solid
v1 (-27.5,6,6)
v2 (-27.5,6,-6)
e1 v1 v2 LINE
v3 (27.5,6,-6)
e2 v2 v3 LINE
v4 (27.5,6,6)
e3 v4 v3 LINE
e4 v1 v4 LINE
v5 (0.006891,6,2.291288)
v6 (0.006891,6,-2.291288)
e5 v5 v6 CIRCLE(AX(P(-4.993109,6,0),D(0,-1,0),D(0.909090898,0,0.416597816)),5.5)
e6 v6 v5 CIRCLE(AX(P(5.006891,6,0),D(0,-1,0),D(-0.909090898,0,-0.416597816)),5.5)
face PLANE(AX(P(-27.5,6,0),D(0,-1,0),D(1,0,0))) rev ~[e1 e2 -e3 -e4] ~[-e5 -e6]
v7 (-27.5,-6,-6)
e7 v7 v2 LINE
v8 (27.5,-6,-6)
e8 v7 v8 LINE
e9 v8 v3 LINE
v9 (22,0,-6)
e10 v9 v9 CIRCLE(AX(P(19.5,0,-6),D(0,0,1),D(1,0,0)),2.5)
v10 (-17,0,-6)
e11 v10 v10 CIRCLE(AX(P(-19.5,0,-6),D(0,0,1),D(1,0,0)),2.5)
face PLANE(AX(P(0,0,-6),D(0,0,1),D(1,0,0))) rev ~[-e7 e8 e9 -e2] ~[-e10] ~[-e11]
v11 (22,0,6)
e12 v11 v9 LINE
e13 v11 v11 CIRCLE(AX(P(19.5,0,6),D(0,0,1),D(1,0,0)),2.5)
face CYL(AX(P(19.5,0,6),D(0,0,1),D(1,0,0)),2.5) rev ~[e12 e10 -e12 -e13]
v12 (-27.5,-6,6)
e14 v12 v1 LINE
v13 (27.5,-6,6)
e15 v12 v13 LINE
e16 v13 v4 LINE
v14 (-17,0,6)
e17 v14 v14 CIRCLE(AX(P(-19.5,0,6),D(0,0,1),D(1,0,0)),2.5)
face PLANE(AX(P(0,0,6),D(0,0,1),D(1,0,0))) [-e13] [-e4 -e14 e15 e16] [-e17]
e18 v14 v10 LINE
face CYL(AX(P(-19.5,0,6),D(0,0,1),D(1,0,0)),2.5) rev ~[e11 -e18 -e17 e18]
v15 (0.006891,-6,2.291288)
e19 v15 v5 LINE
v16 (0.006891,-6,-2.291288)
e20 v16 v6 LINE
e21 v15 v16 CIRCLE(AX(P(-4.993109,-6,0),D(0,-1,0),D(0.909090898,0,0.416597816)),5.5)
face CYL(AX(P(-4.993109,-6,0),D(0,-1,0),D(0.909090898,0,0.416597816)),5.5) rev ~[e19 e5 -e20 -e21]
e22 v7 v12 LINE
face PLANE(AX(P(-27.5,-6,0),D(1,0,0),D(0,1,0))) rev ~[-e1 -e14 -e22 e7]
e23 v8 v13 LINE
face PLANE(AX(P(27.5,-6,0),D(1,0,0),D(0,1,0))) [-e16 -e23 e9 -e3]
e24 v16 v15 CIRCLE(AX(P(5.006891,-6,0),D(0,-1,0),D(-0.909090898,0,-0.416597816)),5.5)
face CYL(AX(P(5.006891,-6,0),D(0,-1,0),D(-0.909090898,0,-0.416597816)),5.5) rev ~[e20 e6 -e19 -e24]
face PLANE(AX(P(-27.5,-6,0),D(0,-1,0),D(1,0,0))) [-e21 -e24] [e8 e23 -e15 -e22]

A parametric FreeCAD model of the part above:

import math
import FreeCAD as App
import Part
import Sketcher
Q = App.Units.Quantity


def add_polygon(sketch, points):
    """Adds a closed chain of lines whose ends are joined by coincident constraints."""
    first, n = sketch.GeometryCount, len(points)
    for a, b in zip(points, points[1:] + points[:1]):
        sketch.addGeometry(Part.LineSegment(App.Vector(*a, 0), App.Vector(*b, 0)), False)
    for i in range(n):
        sketch.addConstraint(Sketcher.Constraint("Coincident", first + i, 2, first + (i + 1) % n, 1))

doc = App.newDocument("Part")
params = doc.addObject("Spreadsheet::Sheet", "Params")
for row, (alias, value) in enumerate([
    ("sketch1_width", "55 mm"),
    ("sketch1_height", "12 mm"),
    ("pad1_length", "12 mm"),
    ("sketch2_diameter", "5 mm"),
    ("sketch3_radius", "5.5 mm"),
    ("pocket2_length", "25 mm"),
], start=1):
    params.set(f"A{row}", alias)
    params.set(f"B{row}", "=" + value)
    params.setAlias(f"B{row}", alias)

body = doc.addObject("PartDesign::Body", "Body")

# Sketch on XY plane
sketch1 = body.newObject("Sketcher::SketchObject", "Sketch")
sketch1.AttachmentSupport = (doc.getObject("XY_Plane"), [""])
sketch1.MapMode = "FlatFace"
add_polygon(sketch1, [(-28, 6), (-28, -6), (28, -6), (28, 6)])  # lines 0-3
sketch1.addConstraint([
    Sketcher.Constraint("Vertical", 0),
    Sketcher.Constraint("Horizontal", 1),
    Sketcher.Constraint("Vertical", 2),
    Sketcher.Constraint("Horizontal", 3),
    Sketcher.Constraint("Symmetric", 0, 2, 2, 2, -1, 1),
    Sketcher.Constraint("DistanceX", 1, 1, 1, 2, Q("55 mm")),
    Sketcher.Constraint("DistanceY", 0, 2, 0, 1, Q("12 mm")),
])
sketch1.setExpression("Constraints[9]", "Params.sketch1_width")
sketch1.setExpression("Constraints[10]", "Params.sketch1_height")
pad1 = body.newObject("PartDesign::Pad", "Pad")
pad1.Profile = sketch1
pad1.setExpression("Length", "Params.pad1_length")
pad1.Midplane = True

# Sketch on XY plane
sketch2 = body.newObject("Sketcher::SketchObject", "Sketch001")
sketch2.AttachmentSupport = (doc.getObject("XY_Plane"), [""])
sketch2.MapMode = "FlatFace"
sketch2.AttachmentOffset = App.Placement(App.Vector(0, 0, 6), App.Rotation())
sketch2.addGeometry([
    Part.Circle(App.Vector(-19.5, 0, 0), App.Vector(0, 0, 1), 2.5),
    Part.Circle(App.Vector(19.5, 0, 0), App.Vector(0, 0, 1), 2.5),
], False)
sketch2.addConstraint([
    Sketcher.Constraint("Equal", 0, 1),
    Sketcher.Constraint("Symmetric", 0, 3, 1, 3, -1, 1),
    Sketcher.Constraint("PointOnObject", 0, 3, -1),
    Sketcher.Constraint("Diameter", 0, Q("5 mm")),
    Sketcher.Constraint("DistanceX", 0, 3, 1, 3, Q("39 mm")),
])
sketch2.setExpression("Constraints[3]", "Params.sketch2_diameter")
pocket1 = body.newObject("PartDesign::Pocket", "Pocket")
pocket1.Profile = sketch2
pocket1.Type = "ThroughAll"

# Sketch on XZ plane
sketch3 = body.newObject("Sketcher::SketchObject", "Sketch002")
sketch3.AttachmentSupport = (doc.getObject("XZ_Plane"), [""])
sketch3.MapMode = "FlatFace"
sketch3.AttachmentOffset = App.Placement(App.Vector(0, 0, 6), App.Rotation())
sketch3.addGeometry([
    Part.ArcOfCircle(Part.Circle(App.Vector(-5, 0, 0), App.Vector(0, 0, 1), 5.5), math.radians(25), math.radians(335)),
    Part.ArcOfCircle(Part.Circle(App.Vector(5, 0, 0), App.Vector(0, 0, 1), 5.5), math.radians(-155), math.radians(155)),
], False)
sketch3.addConstraint([
    Sketcher.Constraint("Coincident", 0, 1, 1, 2),
    Sketcher.Constraint("Coincident", 1, 1, 0, 2),
    Sketcher.Constraint("Equal", 0, 1),
    Sketcher.Constraint("Symmetric", 0, 1, 1, 1, -1),
    Sketcher.Constraint("Radius", 0, Q("5.5 mm")),
    Sketcher.Constraint("DistanceX", 0, 3, 1, 3, Q("10 mm")),
    Sketcher.Constraint("DistanceX", 0, 3, -1, 1, Q("4.993109 mm")),
])
sketch3.setExpression("Constraints[4]", "Params.sketch3_radius")
pocket2 = body.newObject("PartDesign::Pocket", "Pocket001")
pocket2.Profile = sketch3
pocket2.setExpression("Length", "Params.pocket2_length")

doc.recompute()
